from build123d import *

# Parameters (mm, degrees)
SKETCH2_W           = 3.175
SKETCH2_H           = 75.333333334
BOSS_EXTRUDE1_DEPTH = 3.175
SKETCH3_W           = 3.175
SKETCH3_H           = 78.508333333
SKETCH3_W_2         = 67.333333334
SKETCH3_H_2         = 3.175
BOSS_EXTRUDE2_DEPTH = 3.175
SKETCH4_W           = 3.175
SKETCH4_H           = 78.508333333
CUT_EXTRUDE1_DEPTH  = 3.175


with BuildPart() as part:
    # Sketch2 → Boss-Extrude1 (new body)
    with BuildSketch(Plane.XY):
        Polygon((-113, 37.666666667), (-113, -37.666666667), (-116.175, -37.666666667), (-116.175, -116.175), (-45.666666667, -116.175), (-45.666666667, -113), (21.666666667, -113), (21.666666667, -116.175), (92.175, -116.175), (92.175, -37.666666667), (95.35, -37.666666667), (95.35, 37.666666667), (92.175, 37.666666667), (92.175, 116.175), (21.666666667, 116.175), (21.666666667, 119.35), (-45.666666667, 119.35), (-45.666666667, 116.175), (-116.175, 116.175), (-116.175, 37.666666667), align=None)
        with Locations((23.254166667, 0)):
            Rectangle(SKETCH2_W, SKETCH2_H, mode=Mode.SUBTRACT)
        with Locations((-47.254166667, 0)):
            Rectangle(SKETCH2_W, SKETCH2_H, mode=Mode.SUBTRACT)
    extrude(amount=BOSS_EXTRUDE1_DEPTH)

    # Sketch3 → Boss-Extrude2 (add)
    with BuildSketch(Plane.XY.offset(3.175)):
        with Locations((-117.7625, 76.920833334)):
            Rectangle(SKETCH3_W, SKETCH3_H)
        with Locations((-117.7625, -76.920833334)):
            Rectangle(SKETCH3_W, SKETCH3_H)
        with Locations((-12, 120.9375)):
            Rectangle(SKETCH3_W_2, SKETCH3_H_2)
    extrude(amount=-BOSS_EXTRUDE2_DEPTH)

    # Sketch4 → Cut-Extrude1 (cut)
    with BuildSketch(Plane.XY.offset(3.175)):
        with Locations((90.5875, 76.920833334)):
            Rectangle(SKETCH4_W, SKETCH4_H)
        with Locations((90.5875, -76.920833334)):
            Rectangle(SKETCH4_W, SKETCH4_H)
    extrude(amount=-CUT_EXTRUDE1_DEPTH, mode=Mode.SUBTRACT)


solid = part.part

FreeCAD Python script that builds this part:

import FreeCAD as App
import Part
import Sketcher

V = App.Vector
Q = App.Units.Quantity

doc = App.newDocument("Part")
body = doc.addObject("PartDesign::Body", "Body")

sketch1 = body.newObject("Sketcher::SketchObject", "Sketch")
sketch1.AttachmentSupport = (doc.getObject("XY_Plane"), [""])
sketch1.MapMode = "FlatFace"
sketch1.addGeometry([
    Part.LineSegment(V(-113, 37.7, 0), V(-113, -37.7, 0)),
    Part.LineSegment(V(-113, -37.7, 0), V(-116.2, -37.7, 0)),
    Part.LineSegment(V(-116.2, -37.7, 0), V(-116.2, -116.2, 0)),
    Part.LineSegment(V(-116.2, -116.2, 0), V(-45.7, -116.2, 0)),
    Part.LineSegment(V(-45.7, -116.2, 0), V(-45.7, -113, 0)),
    Part.LineSegment(V(-45.7, -113, 0), V(21.7, -113, 0)),
    Part.LineSegment(V(21.7, -113, 0), V(21.7, -116.2, 0)),
    Part.LineSegment(V(21.7, -116.2, 0), V(92.2, -116.2, 0)),
    Part.LineSegment(V(92.2, -116.2, 0), V(92.2, -37.7, 0)),
    Part.LineSegment(V(92.2, -37.7, 0), V(95.3, -37.7, 0)),
    Part.LineSegment(V(95.3, -37.7, 0), V(95.3, 37.7, 0)),
    Part.LineSegment(V(95.3, 37.7, 0), V(92.2, 37.7, 0)),
    Part.LineSegment(V(92.2, 37.7, 0), V(92.2, 116.2, 0)),
    Part.LineSegment(V(92.2, 116.2, 0), V(21.7, 116.2, 0)),
    Part.LineSegment(V(21.7, 116.2, 0), V(21.7, 119.3, 0)),
    Part.LineSegment(V(21.7, 119.3, 0), V(-45.7, 119.3, 0)),
    Part.LineSegment(V(-45.7, 119.3, 0), V(-45.7, 116.2, 0)),
    Part.LineSegment(V(-45.7, 116.2, 0), V(-116.2, 116.2, 0)),
    Part.LineSegment(V(-116.2, 116.2, 0), V(-116.2, 37.7, 0)),
    Part.LineSegment(V(-116.2, 37.7, 0), V(-113, 37.7, 0)),
    Part.LineSegment(V(-45.7, -37.7, 0), V(-48.8, -37.7, 0)),
    Part.LineSegment(V(-48.8, -37.7, 0), V(-48.8, 37.7, 0)),
    Part.LineSegment(V(-48.8, 37.7, 0), V(-45.7, 37.7, 0)),
    Part.LineSegment(V(-45.7, 37.7, 0), V(-45.7, -37.7, 0)),
    Part.LineSegment(V(24.8, -37.7, 0), V(21.7, -37.7, 0)),
    Part.LineSegment(V(21.7, -37.7, 0), V(21.7, 37.7, 0)),
    Part.LineSegment(V(21.7, 37.7, 0), V(24.8, 37.7, 0)),
    Part.LineSegment(V(24.8, 37.7, 0), V(24.8, -37.7, 0)),
], False)
sketch1.addConstraint([
    Sketcher.Constraint("Coincident", 0, 2, 1, 1),
    Sketcher.Constraint("Coincident", 1, 2, 2, 1),
    Sketcher.Constraint("Coincident", 2, 2, 3, 1),
    Sketcher.Constraint("Coincident", 3, 2, 4, 1),
    Sketcher.Constraint("Coincident", 4, 2, 5, 1),
    Sketcher.Constraint("Coincident", 5, 2, 6, 1),
    Sketcher.Constraint("Coincident", 6, 2, 7, 1),
    Sketcher.Constraint("Coincident", 7, 2, 8, 1),
    Sketcher.Constraint("Coincident", 8, 2, 9, 1),
    Sketcher.Constraint("Coincident", 9, 2, 10, 1),
    Sketcher.Constraint("Coincident", 10, 2, 11, 1),
    Sketcher.Constraint("Coincident", 11, 2, 12, 1),
    Sketcher.Constraint("Coincident", 12, 2, 13, 1),
    Sketcher.Constraint("Coincident", 13, 2, 14, 1),
    Sketcher.Constraint("Coincident", 14, 2, 15, 1),
    Sketcher.Constraint("Coincident", 15, 2, 16, 1),
    Sketcher.Constraint("Coincident", 16, 2, 17, 1),
    Sketcher.Constraint("Coincident", 17, 2, 18, 1),
    Sketcher.Constraint("Coincident", 18, 2, 19, 1),
    Sketcher.Constraint("Coincident", 19, 2, 0, 1),
    Sketcher.Constraint("Coincident", 20, 2, 21, 1),
    Sketcher.Constraint("Coincident", 21, 2, 22, 1),
    Sketcher.Constraint("Coincident", 22, 2, 23, 1),
    Sketcher.Constraint("Coincident", 23, 2, 20, 1),
    Sketcher.Constraint("Coincident", 24, 2, 25, 1),
    Sketcher.Constraint("Coincident", 25, 2, 26, 1),
    Sketcher.Constraint("Coincident", 26, 2, 27, 1),
    Sketcher.Constraint("Coincident", 27, 2, 24, 1),
    Sketcher.Constraint("Vertical", 0),
    Sketcher.Constraint("Horizontal", 1),
    Sketcher.Constraint("Vertical", 2),
    Sketcher.Constraint("Horizontal", 3),
    Sketcher.Constraint("Vertical", 4),
    Sketcher.Constraint("Horizontal", 5),
    Sketcher.Constraint("Vertical", 6),
    Sketcher.Constraint("Horizontal", 7),
    Sketcher.Constraint("Vertical", 8),
    Sketcher.Constraint("Horizontal", 9),
    Sketcher.Constraint("Vertical", 10),
    Sketcher.Constraint("Horizontal", 11),
    Sketcher.Constraint("Vertical", 12),
    Sketcher.Constraint("Horizontal", 13),
    Sketcher.Constraint("Vertical", 14),
    Sketcher.Constraint("Horizontal", 15),
    Sketcher.Constraint("Vertical", 16),
    Sketcher.Constraint("Horizontal", 17),
    Sketcher.Constraint("Vertical", 18),
    Sketcher.Constraint("Horizontal", 19),
    Sketcher.Constraint("Horizontal", 20),
    Sketcher.Constraint("Vertical", 21),
    Sketcher.Constraint("Horizontal", 22),
    Sketcher.Constraint("Vertical", 23),
    Sketcher.Constraint("Horizontal", 24),
    Sketcher.Constraint("Vertical", 25),
    Sketcher.Constraint("Horizontal", 26),
    Sketcher.Constraint("Vertical", 27),
    Sketcher.Constraint("Symmetric", 8, 2, 11, 2, -1),
    Sketcher.Constraint("Symmetric", 6, 2, 13, 2, -1),
    Sketcher.Constraint("Symmetric", 3, 2, 16, 2, -1),
    Sketcher.Constraint("Symmetric", 1, 2, 18, 2, -1),
    Sketcher.Constraint("Horizontal", 3, 2, 6, 2),
    Sketcher.Constraint("Horizontal", 1, 2, 8, 2),
    Sketcher.Constraint("Horizontal", 9, 2, 20, 2),
    Sketcher.Constraint("Horizontal", 19, 2, 21, 2),
    Sketcher.Constraint("Horizontal", 23, 2, 24, 2),
    Sketcher.Constraint("Horizontal", 22, 2, 25, 2),
    Sketcher.Constraint("Vertical", 16, 2, 22, 2),
    Sketcher.Constraint("Vertical", 14, 2, 24, 2),
    Sketcher.Constraint("Equal", 3, 7),
    Sketcher.Constraint("Equal", 1, 9),
    Sketcher.Constraint("Equal", 19, 20),
    Sketcher.Constraint("Equal", 22, 24),
    Sketcher.Constraint("Equal", 26, 4),
    Sketcher.Constraint("Equal", 6, 14),
    Sketcher.Constraint("DistanceX", 1, 2, 1, 1, Q("0.125 in")),
    Sketcher.Constraint("DistanceX", 0, 2, -1, 1, Q("113 mm")),
    Sketcher.Constraint("DistanceY", 2, 2, -1, 1, Q("116.175 mm")),
    Sketcher.Constraint("DistanceX", -1, 1, 7, 2, Q("92.175 mm")),
    Sketcher.Constraint("DistanceX", 3, 1, 3, 2, Q("70.508333 mm")),
    Sketcher.Constraint("DistanceY", 0, 2, 0, 1, Q("75.333333 mm")),
])
pad1 = body.newObject("PartDesign::Pad", "Pad")
pad1.Profile = sketch1
pad1.Length = Q("0.125 in")

sketch2 = body.newObject("Sketcher::SketchObject", "Sketch001")
sketch2.AttachmentSupport = (doc.getObject("XY_Plane"), [""])
sketch2.MapMode = "FlatFace"
sketch2.AttachmentOffset = App.Placement(V(0, 0, 0.125 * 25.4), App.Rotation())
sketch2.addGeometry([
    Part.LineSegment(V(-119.3, 116.2, 0), V(-119.3, 37.7, 0)),
    Part.LineSegment(V(-119.3, 37.7, 0), V(-116.2, 37.7, 0)),
    Part.LineSegment(V(-116.2, 37.7, 0), V(-116.2, 116.2, 0)),
    Part.LineSegment(V(-116.2, 116.2, 0), V(-119.3, 116.2, 0)),
    Part.LineSegment(V(-119.3, -37.7, 0), V(-119.3, -116.2, 0)),
    Part.LineSegment(V(-119.3, -116.2, 0), V(-116.2, -116.2, 0)),
    Part.LineSegment(V(-116.2, -116.2, 0), V(-116.2, -37.7, 0)),
    Part.LineSegment(V(-116.2, -37.7, 0), V(-119.3, -37.7, 0)),
    Part.LineSegment(V(-45.7, 122.5, 0), V(-45.7, 119.3, 0)),
    Part.LineSegment(V(-45.7, 119.3, 0), V(21.7, 119.3, 0)),
    Part.LineSegment(V(21.7, 119.3, 0), V(21.7, 122.5, 0)),
    Part.LineSegment(V(21.7, 122.5, 0), V(-45.7, 122.5, 0)),
], False)
sketch2.addConstraint([
    Sketcher.Constraint("Coincident", 0, 2, 1, 1),
    Sketcher.Constraint("Coincident", 1, 2, 2, 1),
    Sketcher.Constraint("Coincident", 2, 2, 3, 1),
    Sketcher.Constraint("Coincident", 3, 2, 0, 1),
    Sketcher.Constraint("Coincident", 4, 2, 5, 1),
    Sketcher.Constraint("Coincident", 5, 2, 6, 1),
    Sketcher.Constraint("Coincident", 6, 2, 7, 1),
    Sketcher.Constraint("Coincident", 7, 2, 4, 1),
    Sketcher.Constraint("Coincident", 8, 2, 9, 1),
    Sketcher.Constraint("Coincident", 9, 2, 10, 1),
    Sketcher.Constraint("Coincident", 10, 2, 11, 1),
    Sketcher.Constraint("Coincident", 11, 2, 8, 1),
    Sketcher.Constraint("Vertical", 0),
    Sketcher.Constraint("Horizontal", 1),
    Sketcher.Constraint("Vertical", 2),
    Sketcher.Constraint("Horizontal", 3),
    Sketcher.Constraint("Vertical", 4),
    Sketcher.Constraint("Horizontal", 5),
    Sketcher.Constraint("Vertical", 6),
    Sketcher.Constraint("Horizontal", 7),
    Sketcher.Constraint("Vertical", 8),
    Sketcher.Constraint("Horizontal", 9),
    Sketcher.Constraint("Vertical", 10),
    Sketcher.Constraint("Horizontal", 11),
    Sketcher.Constraint("Symmetric", 3, 2, 4, 2, -1),
    Sketcher.Constraint("Symmetric", 1, 2, 6, 2, -1),
    Sketcher.Constraint("Equal", 7, 8),
    Sketcher.Constraint("DistanceX", 1, 1, 1, 2, Q("0.125 in")),
    Sketcher.Constraint("DistanceY", 2, 2, 10, 2, Q("0.25 in")),
    Sketcher.Constraint("DistanceX", 0, 2, -1, 1, Q("119.35 mm")),
    Sketcher.Constraint("DistanceY", -1, 1, 2, 2, Q("116.175 mm")),
    Sketcher.Constraint("DistanceX", 9, 1, 9, 2, Q("67.333333 mm")),
    Sketcher.Constraint("DistanceY", 0, 2, 0, 1, Q("78.508333 mm")),
    Sketcher.Constraint("DistanceX", 8, 2, -1, 1, Q("45.666667 mm")),
])
pad2 = body.newObject("PartDesign::Pad", "Pad001")
pad2.Profile = sketch2
pad2.Length = Q("0.125 in")
pad2.Reversed = True

sketch3 = body.newObject("Sketcher::SketchObject", "Sketch002")
sketch3.AttachmentSupport = (doc.getObject("XY_Plane"), [""])
sketch3.MapMode = "FlatFace"
sketch3.AttachmentOffset = App.Placement(V(0, 0, 0.125 * 25.4), App.Rotation())
sketch3.addGeometry([
    Part.LineSegment(V(89, 116.2, 0), V(89, 37.7, 0)),
    Part.LineSegment(V(89, 37.7, 0), V(92.2, 37.7, 0)),
    Part.LineSegment(V(92.2, 37.7, 0), V(92.2, 116.2, 0)),
    Part.LineSegment(V(92.2, 116.2, 0), V(89, 116.2, 0)),
    Part.LineSegment(V(89, -37.7, 0), V(89, -116.2, 0)),
    Part.LineSegment(V(89, -116.2, 0), V(92.2, -116.2, 0)),
    Part.LineSegment(V(92.2, -116.2, 0), V(92.2, -37.7, 0)),
    Part.LineSegment(V(92.2, -37.7, 0), V(89, -37.7, 0)),
], False)
sketch3.addConstraint([
    Sketcher.Constraint("Coincident", 0, 2, 1, 1),
    Sketcher.Constraint("Coincident", 1, 2, 2, 1),
    Sketcher.Constraint("Coincident", 2, 2, 3, 1),
    Sketcher.Constraint("Coincident", 3, 2, 0, 1),
    Sketcher.Constraint("Coincident", 4, 2, 5, 1),
    Sketcher.Constraint("Coincident", 5, 2, 6, 1),
    Sketcher.Constraint("Coincident", 6, 2, 7, 1),
    Sketcher.Constraint("Coincident", 7, 2, 4, 1),
    Sketcher.Constraint("Vertical", 0),
    Sketcher.Constraint("Horizontal", 1),
    Sketcher.Constraint("Vertical", 2),
    Sketcher.Constraint("Horizontal", 3),
    Sketcher.Constraint("Vertical", 4),
    Sketcher.Constraint("Horizontal", 5),
    Sketcher.Constraint("Vertical", 6),
    Sketcher.Constraint("Horizontal", 7),
    Sketcher.Constraint("Symmetric", 3, 2, 4, 2, -1),
    Sketcher.Constraint("Symmetric", 1, 2, 6, 2, -1),
    Sketcher.Constraint("DistanceX", 1, 1, 1, 2, Q("0.125 in")),
    Sketcher.Constraint("DistanceX", -1, 1, 0, 2, Q("89 mm")),
    Sketcher.Constraint("DistanceY", -1, 1, 2, 2, Q("116.175 mm")),
    Sketcher.Constraint("DistanceY", 0, 2, 0, 1, Q("78.508333 mm")),
])
pocket1 = body.newObject("PartDesign::Pocket", "Pocket")
pocket1.Profile = sketch3
pocket1.Length = Q("0.125 in")

doc.recompute()
